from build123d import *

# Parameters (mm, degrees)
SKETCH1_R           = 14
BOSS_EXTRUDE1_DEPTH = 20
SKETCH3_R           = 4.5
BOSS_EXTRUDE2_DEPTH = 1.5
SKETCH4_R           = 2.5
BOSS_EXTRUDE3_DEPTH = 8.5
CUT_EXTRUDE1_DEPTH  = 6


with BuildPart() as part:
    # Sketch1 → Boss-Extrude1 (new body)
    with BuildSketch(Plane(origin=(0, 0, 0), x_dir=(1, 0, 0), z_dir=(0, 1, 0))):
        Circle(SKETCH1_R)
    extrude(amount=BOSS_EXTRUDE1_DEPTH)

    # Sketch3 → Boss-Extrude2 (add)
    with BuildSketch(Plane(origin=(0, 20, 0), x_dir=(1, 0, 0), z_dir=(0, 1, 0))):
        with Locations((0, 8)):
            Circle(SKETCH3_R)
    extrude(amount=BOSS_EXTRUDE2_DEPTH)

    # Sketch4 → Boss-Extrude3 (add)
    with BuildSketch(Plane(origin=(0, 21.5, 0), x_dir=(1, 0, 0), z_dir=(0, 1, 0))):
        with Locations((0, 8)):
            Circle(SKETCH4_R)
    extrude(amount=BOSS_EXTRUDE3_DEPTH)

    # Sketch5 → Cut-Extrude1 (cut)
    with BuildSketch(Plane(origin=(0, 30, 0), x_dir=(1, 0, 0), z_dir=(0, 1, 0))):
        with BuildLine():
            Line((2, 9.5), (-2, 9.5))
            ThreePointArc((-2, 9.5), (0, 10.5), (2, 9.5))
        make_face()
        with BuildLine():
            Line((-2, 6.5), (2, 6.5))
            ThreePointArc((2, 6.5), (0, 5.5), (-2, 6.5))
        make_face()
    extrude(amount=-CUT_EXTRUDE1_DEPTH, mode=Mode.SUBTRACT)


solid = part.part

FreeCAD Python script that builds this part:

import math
import FreeCAD as App
import Part
import Sketcher

V = App.Vector

doc = App.newDocument("Part")
body = doc.addObject("PartDesign::Body", "Body")

# Sketch on XZ plane
sketch1 = body.newObject("Sketcher::SketchObject", "Sketch")
sketch1.AttachmentSupport = (doc.getObject("XZ_Plane"), [""])
sketch1.MapMode = "FlatFace"
sketch1.addGeometry(Part.Circle(V(0, 0, 0), V(0, 0, 1), 14), False)
sketch1.addConstraint(Sketcher.Constraint("Coincident", 0, 3, -1, 1))
sketch1.addConstraint(Sketcher.Constraint("Diameter", 0, 28.0))
pad1 = body.newObject("PartDesign::Pad", "Pad")
pad1.Profile = sketch1
pad1.Length = 20
pad1.Reversed = True

# Sketch on XZ plane
sketch2 = body.newObject("Sketcher::SketchObject", "Sketch001")
sketch2.AttachmentSupport = (doc.getObject("XZ_Plane"), [""])
sketch2.MapMode = "FlatFace"
sketch2.AttachmentOffset = App.Placement(V(0, 0, -20), App.Rotation())
sketch2.addGeometry(Part.Circle(V(0, -8, 0), V(0, 0, 1), 4.5), False)
sketch2.addConstraint(Sketcher.Constraint("PointOnObject", 0, 3, -2))
sketch2.addConstraint(Sketcher.Constraint("Diameter", 0, 9.0))
sketch2.addConstraint(Sketcher.Constraint("DistanceY", 0, 3, -1, 1, 8.0))
pad2 = body.newObject("PartDesign::Pad", "Pad001")
pad2.Profile = sketch2
pad2.Length = 1.5
pad2.Reversed = True

# Sketch on XZ plane
sketch3 = body.newObject("Sketcher::SketchObject", "Sketch002")
sketch3.AttachmentSupport = (doc.getObject("XZ_Plane"), [""])
sketch3.MapMode = "FlatFace"
sketch3.AttachmentOffset = App.Placement(V(0, 0, -21.5), App.Rotation())
sketch3.addGeometry(Part.Circle(V(0, -8, 0), V(0, 0, 1), 2.5), False)
sketch3.addConstraint(Sketcher.Constraint("PointOnObject", 0, 3, -2))
sketch3.addConstraint(Sketcher.Constraint("Diameter", 0, 5.0))
sketch3.addConstraint(Sketcher.Constraint("DistanceY", 0, 3, -1, 1, 8.0))
pad3 = body.newObject("PartDesign::Pad", "Pad002")
pad3.Profile = sketch3
pad3.Length = 8.5
pad3.Reversed = True

# Sketch on XZ plane
sketch4 = body.newObject("Sketcher::SketchObject", "Sketch003")
sketch4.AttachmentSupport = (doc.getObject("XZ_Plane"), [""])
sketch4.MapMode = "FlatFace"
sketch4.AttachmentOffset = App.Placement(V(0, 0, -30), App.Rotation())
sketch4.addGeometry(Part.LineSegment(V(-2, -9.5, 0), V(2, -9.5, 0)), False)
sketch4.addGeometry(Part.ArcOfCircle(Part.Circle(V(0, -8, 0), V(0, 0, 1), 2.5), math.radians(-143), math.radians(-37)), False)
sketch4.addGeometry(Part.LineSegment(V(2, -6.5, 0), V(-2, -6.5, 0)), False)
sketch4.addGeometry(Part.ArcOfCircle(Part.Circle(V(0, -8, 0), V(0, 0, 1), 2.5), math.radians(37), math.radians(143)), False)
sketch4.addConstraint(Sketcher.Constraint("Coincident", 0, 1, 1, 1))
sketch4.addConstraint(Sketcher.Constraint("Coincident", 1, 2, 0, 2))
sketch4.addConstraint(Sketcher.Constraint("Coincident", 2, 1, 3, 1))
sketch4.addConstraint(Sketcher.Constraint("Coincident", 3, 2, 2, 2))
sketch4.addConstraint(Sketcher.Constraint("Horizontal", 0))
sketch4.addConstraint(Sketcher.Constraint("Horizontal", 2))
sketch4.addConstraint(Sketcher.Constraint("Coincident", 3, 3, 1, 3))
sketch4.addConstraint(Sketcher.Constraint("Equal", 1, 3))
sketch4.addConstraint(Sketcher.Constraint("PointOnObject", 1, 3, -2))
sketch4.addConstraint(Sketcher.Constraint("Vertical", 1, 2, 2, 1))
sketch4.addConstraint(Sketcher.Constraint("Radius", 1, 2.5))
sketch4.addConstraint(Sketcher.Constraint("DistanceX", 0, 1, 0, 2, 4.0))
sketch4.addConstraint(Sketcher.Constraint("DistanceY", 1, 3, -1, 1, 8.0))
pocket1 = body.newObject("PartDesign::Pocket", "Pocket")
pocket1.Profile = sketch4
pocket1.Length = 6
pocket1.Reversed = True

doc.recompute()
